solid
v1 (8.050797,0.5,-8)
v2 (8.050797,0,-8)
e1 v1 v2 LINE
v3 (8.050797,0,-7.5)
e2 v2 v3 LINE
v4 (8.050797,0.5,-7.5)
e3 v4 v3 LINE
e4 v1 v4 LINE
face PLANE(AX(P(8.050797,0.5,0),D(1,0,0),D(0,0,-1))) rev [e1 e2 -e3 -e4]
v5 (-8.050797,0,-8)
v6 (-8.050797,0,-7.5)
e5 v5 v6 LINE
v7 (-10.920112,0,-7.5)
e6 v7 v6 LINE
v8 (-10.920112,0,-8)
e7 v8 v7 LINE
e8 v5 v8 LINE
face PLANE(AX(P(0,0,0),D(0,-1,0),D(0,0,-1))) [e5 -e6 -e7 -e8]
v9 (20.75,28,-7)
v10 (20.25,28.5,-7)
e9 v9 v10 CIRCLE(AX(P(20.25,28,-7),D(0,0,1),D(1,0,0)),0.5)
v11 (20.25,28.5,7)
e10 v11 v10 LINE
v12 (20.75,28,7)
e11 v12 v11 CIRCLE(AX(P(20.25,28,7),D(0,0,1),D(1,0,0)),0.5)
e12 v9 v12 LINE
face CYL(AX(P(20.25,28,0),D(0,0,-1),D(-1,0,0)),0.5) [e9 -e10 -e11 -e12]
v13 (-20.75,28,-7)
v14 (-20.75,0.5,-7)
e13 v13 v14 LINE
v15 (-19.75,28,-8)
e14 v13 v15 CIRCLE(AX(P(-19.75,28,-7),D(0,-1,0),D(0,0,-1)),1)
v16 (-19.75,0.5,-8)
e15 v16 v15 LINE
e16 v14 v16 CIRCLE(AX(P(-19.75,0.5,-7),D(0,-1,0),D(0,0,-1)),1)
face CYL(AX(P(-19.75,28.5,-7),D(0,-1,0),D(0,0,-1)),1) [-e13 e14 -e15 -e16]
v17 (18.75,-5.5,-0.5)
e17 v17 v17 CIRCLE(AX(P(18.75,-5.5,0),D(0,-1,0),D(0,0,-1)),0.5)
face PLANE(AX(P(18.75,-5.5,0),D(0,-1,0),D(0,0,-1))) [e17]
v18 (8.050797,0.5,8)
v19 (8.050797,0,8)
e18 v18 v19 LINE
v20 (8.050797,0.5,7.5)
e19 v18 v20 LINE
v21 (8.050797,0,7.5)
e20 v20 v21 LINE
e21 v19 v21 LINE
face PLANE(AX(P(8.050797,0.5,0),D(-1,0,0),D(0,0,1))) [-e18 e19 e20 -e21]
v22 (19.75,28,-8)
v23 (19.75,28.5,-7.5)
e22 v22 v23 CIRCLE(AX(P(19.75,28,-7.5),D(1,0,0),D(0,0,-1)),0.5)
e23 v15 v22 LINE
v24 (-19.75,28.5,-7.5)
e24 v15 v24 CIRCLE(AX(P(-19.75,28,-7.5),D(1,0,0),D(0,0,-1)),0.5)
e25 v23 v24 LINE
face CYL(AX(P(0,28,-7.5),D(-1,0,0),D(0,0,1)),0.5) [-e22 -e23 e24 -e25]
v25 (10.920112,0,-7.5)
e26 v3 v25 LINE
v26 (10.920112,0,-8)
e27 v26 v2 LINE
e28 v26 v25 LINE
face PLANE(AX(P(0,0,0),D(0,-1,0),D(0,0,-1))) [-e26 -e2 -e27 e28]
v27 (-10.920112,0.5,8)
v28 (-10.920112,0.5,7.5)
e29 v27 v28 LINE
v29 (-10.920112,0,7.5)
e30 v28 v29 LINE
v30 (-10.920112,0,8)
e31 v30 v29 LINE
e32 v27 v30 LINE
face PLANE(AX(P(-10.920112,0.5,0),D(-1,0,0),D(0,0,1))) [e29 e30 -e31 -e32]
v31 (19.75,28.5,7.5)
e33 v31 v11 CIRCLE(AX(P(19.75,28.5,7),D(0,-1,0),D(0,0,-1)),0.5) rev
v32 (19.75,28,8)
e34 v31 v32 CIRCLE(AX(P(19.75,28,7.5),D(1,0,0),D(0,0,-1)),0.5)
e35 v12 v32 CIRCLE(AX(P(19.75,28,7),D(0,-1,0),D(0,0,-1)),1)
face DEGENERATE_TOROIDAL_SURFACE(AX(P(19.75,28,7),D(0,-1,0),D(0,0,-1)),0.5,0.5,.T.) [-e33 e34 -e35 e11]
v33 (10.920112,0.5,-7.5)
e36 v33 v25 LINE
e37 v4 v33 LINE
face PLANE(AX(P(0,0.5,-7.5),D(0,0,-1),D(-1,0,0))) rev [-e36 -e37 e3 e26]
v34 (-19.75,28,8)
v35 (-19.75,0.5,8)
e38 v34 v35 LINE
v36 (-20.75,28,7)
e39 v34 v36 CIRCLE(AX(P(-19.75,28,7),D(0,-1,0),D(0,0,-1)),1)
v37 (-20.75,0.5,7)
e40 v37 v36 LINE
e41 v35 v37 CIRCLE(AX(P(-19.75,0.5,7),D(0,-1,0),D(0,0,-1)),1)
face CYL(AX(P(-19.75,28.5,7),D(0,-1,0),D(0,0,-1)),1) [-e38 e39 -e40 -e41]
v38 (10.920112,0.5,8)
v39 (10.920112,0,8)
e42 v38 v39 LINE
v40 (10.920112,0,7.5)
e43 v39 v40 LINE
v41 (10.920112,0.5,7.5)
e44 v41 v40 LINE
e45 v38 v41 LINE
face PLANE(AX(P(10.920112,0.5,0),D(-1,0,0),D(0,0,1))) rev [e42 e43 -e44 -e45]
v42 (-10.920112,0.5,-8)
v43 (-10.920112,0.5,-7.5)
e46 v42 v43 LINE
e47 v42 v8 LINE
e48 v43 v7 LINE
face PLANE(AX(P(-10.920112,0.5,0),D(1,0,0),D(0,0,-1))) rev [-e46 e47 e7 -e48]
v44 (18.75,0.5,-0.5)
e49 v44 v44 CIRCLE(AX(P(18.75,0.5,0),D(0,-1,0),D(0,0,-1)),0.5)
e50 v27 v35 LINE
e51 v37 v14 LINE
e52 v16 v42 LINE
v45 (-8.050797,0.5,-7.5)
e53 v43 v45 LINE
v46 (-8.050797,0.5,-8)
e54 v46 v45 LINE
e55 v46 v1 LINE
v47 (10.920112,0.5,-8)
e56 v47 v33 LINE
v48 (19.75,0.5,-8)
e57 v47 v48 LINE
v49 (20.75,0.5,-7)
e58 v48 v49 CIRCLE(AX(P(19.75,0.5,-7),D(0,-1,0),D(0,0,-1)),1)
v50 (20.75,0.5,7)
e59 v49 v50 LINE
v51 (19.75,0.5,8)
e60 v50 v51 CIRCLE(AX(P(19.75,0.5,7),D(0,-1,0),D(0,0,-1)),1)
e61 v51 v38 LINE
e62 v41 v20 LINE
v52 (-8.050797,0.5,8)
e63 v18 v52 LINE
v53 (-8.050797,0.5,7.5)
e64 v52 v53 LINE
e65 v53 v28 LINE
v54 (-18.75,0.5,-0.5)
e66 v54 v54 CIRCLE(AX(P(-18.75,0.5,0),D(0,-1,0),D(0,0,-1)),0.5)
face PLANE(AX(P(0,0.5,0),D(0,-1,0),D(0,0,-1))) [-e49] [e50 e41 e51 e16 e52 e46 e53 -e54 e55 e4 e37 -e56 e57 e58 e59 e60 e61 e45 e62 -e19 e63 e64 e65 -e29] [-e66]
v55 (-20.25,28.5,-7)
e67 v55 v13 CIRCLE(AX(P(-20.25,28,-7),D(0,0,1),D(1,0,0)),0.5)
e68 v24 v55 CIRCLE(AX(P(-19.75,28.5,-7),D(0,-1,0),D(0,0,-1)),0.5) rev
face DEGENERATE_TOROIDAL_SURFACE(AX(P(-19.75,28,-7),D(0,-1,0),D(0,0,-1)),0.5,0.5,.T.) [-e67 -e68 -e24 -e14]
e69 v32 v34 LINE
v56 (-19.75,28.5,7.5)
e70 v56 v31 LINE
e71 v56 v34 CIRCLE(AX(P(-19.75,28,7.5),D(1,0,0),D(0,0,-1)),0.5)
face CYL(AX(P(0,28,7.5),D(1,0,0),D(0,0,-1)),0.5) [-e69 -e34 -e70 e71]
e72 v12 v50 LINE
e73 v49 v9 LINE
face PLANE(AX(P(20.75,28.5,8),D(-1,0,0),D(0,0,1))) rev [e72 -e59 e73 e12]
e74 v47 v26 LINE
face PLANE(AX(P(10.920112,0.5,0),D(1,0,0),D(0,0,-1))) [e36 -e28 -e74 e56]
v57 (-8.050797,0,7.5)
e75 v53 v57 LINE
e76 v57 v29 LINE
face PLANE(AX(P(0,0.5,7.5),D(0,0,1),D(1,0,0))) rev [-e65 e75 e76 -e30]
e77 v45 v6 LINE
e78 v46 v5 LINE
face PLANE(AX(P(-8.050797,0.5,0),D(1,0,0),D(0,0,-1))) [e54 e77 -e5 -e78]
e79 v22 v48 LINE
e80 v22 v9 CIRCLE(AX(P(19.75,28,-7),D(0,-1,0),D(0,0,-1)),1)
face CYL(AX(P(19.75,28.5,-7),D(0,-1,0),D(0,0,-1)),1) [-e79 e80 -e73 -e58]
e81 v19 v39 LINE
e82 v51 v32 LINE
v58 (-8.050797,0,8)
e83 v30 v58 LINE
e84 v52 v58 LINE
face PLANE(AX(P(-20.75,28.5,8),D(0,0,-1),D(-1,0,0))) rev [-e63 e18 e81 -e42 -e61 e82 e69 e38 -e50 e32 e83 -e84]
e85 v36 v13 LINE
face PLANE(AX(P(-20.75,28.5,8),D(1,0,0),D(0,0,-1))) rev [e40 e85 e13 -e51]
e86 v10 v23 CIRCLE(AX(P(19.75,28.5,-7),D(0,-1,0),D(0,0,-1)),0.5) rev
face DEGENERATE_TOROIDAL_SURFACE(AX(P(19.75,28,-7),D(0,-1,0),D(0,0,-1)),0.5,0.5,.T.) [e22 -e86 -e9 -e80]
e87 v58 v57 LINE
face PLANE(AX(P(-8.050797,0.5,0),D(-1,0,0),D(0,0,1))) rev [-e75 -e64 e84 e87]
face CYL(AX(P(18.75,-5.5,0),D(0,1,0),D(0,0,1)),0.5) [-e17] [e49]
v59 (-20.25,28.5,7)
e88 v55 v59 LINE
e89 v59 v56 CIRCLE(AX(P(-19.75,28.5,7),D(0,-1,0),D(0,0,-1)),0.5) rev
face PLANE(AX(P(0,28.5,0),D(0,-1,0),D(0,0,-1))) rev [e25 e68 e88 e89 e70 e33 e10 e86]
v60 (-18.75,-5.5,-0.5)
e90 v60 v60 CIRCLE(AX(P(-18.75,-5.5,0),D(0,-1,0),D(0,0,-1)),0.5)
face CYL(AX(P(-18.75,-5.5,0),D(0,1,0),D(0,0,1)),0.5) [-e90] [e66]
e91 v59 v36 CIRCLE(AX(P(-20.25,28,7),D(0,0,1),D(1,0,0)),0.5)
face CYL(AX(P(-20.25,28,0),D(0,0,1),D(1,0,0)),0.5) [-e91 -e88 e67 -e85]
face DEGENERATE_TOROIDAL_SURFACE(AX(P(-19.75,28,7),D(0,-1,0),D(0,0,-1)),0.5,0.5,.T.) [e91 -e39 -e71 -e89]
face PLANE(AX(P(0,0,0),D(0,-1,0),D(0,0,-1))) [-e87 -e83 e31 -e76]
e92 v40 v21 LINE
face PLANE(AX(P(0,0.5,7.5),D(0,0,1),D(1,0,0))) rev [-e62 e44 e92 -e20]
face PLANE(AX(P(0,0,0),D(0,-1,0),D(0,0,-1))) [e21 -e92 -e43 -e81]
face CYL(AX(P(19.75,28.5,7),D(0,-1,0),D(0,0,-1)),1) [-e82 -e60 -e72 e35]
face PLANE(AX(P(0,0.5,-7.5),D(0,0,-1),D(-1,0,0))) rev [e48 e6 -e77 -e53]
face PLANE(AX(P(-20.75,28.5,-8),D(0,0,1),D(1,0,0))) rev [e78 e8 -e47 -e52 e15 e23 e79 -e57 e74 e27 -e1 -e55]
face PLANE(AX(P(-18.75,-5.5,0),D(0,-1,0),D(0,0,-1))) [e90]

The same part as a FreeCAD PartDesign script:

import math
import FreeCAD as App
import Part
import Sketcher
from FreeCAD import Vector
Q = App.Units.Quantity


def edges_at(feature, points):
    """Names of the edges that pass closest to the given points."""
    edges = feature.Shape.Edges
    near = lambda p: min(range(len(edges)), key=lambda i: edges[i].distToShape(Part.Vertex(*p))[0])
    return sorted({f"Edge{near(p) + 1}" for p in points})

doc = App.newDocument("Part")
body = doc.addObject("PartDesign::Body", "Body")

# Sketch on XZ plane
sketch1 = body.newObject("Sketcher::SketchObject", "Sketch")
sketch1.AttachmentSupport = (doc.getObject("XZ_Plane"), [""])
sketch1.MapMode = "FlatFace"
sketch1.addGeometry([
    Part.LineSegment(Vector(-21, -8, 0), Vector(-21, 8, 0)),
    Part.LineSegment(Vector(-21, 8, 0), Vector(21, 8, 0)),
    Part.LineSegment(Vector(21, 8, 0), Vector(21, -8, 0)),
    Part.LineSegment(Vector(21, -8, 0), Vector(-21, -8, 0)),
], False)
sketch1.addConstraint([
    Sketcher.Constraint("Coincident", 0, 2, 1, 1),
    Sketcher.Constraint("Coincident", 1, 2, 2, 1),
    Sketcher.Constraint("Coincident", 2, 2, 3, 1),
    Sketcher.Constraint("Coincident", 3, 2, 0, 1),
    Sketcher.Constraint("Vertical", 0),
    Sketcher.Constraint("Horizontal", 1),
    Sketcher.Constraint("Vertical", 2),
    Sketcher.Constraint("Horizontal", 3),
    Sketcher.Constraint("Symmetric", 0, 2, 2, 2, -1, 1),
    Sketcher.Constraint("DistanceY", 0, 1, 0, 2, Q("16 mm")),
    Sketcher.Constraint("DistanceX", 1, 1, 1, 2, Q("41.5 mm")),
])
pad1 = body.newObject("PartDesign::Pad", "Pad")
pad1.Profile = sketch1
pad1.Length = 28.5
pad1.Reversed = True
doc.recompute()

fillet = body.newObject("PartDesign::Fillet", "Fillet")
fillet.Base = (pad1, edges_at(pad1, [
    (20.75, 14.25, 8),
    (-20.75, 14.25, 8),
    (-20.75, 14.25, -8),
    (20.75, 14.25, -8),
]))
fillet.Radius = 1
doc.recompute()

fillet2 = body.newObject("PartDesign::Fillet", "Fillet001")
fillet2.Base = (fillet, edges_at(fillet, [
    (0, 28.5, -8),
    (20.75, 28.5, 0),
    (-20.75, 28.5, 0),
    (0, 28.5, 8),
    (-20.457, 28.5, 7.707),
    (-20.457, 28.5, -7.707),
    (20.457, 28.5, 7.707),
    (20.457, 28.5, -7.707),
]))
fillet2.Radius = 0.5

# Sketch on XZ plane
sketch2 = body.newObject("Sketcher::SketchObject", "Sketch001")
sketch2.AttachmentSupport = (doc.getObject("XZ_Plane"), [""])
sketch2.MapMode = "FlatFace"
sketch2.AttachmentOffset = App.Placement(Vector(0, 0, -0.5), App.Rotation())
sketch2.addGeometry([
    Part.LineSegment(Vector(-10.9, 7.5, 0), Vector(-10.9, 8, 0)),  # 0
    Part.LineSegment(Vector(-10.9, 8, 0), Vector(-19.8, 8, 0)),  # 1
    Part.ArcOfCircle(Part.Circle(Vector(-19.7, 7, 0), Vector(0, 0, 1), 1), math.radians(90), math.radians(180)),  # 2
    Part.LineSegment(Vector(-20.8, 7, 0), Vector(-20.8, -7, 0)),  # 3
    Part.ArcOfCircle(Part.Circle(Vector(-19.7, -7, 0), Vector(0, 0, 1), 1), math.radians(-180), math.radians(-90)),  # 4
    Part.LineSegment(Vector(-19.8, -8, 0), Vector(-10.9, -8, 0)),  # 5
    Part.LineSegment(Vector(-10.9, -8, 0), Vector(-10.9, -7.5, 0)),  # 6
    Part.LineSegment(Vector(-10.9, -7.5, 0), Vector(-8.1, -7.5, 0)),  # 7
    Part.LineSegment(Vector(-8.1, -7.5, 0), Vector(-8.1, -8, 0)),  # 8
    Part.LineSegment(Vector(-8.1, -8, 0), Vector(8.1, -8, 0)),  # 9
    Part.LineSegment(Vector(8.1, -8, 0), Vector(8.1, -7.5, 0)),  # 10
    Part.LineSegment(Vector(8.1, -7.5, 0), Vector(10.9, -7.5, 0)),  # 11
    Part.LineSegment(Vector(10.9, -7.5, 0), Vector(10.9, -8, 0)),  # 12
    Part.LineSegment(Vector(10.9, -8, 0), Vector(19.8, -8, 0)),  # 13
    Part.ArcOfCircle(Part.Circle(Vector(19.7, -7, 0), Vector(0, 0, 1), 1), math.radians(-90), math.radians(0)),  # 14
    Part.LineSegment(Vector(20.8, -7, 0), Vector(20.8, 7, 0)),  # 15
    Part.ArcOfCircle(Part.Circle(Vector(19.7, 7, 0), Vector(0, 0, 1), 1), math.radians(0), math.radians(90)),  # 16
    Part.LineSegment(Vector(19.8, 8, 0), Vector(10.9, 8, 0)),  # 17
    Part.LineSegment(Vector(10.9, 8, 0), Vector(10.9, 7.5, 0)),  # 18
    Part.LineSegment(Vector(10.9, 7.5, 0), Vector(8.1, 7.5, 0)),  # 19
    Part.LineSegment(Vector(8.1, 7.5, 0), Vector(8.1, 8, 0)),  # 20
    Part.LineSegment(Vector(8.1, 8, 0), Vector(-8.1, 8, 0)),  # 21
    Part.LineSegment(Vector(-8.1, 8, 0), Vector(-8.1, 7.5, 0)),  # 22
    Part.LineSegment(Vector(-8.1, 7.5, 0), Vector(-10.9, 7.5, 0)),  # 23
], False)
sketch2.addConstraint([
    Sketcher.Constraint("Coincident", 0, 2, 1, 1),
    Sketcher.Constraint("Tangent", 1, 2, 2, 1),
    Sketcher.Constraint("Tangent", 2, 2, 3, 1),
    Sketcher.Constraint("Tangent", 3, 2, 4, 1),
    Sketcher.Constraint("Tangent", 4, 2, 5, 1),
    Sketcher.Constraint("Coincident", 5, 2, 6, 1),
    Sketcher.Constraint("Coincident", 6, 2, 7, 1),
    Sketcher.Constraint("Coincident", 7, 2, 8, 1),
    Sketcher.Constraint("Coincident", 8, 2, 9, 1),
    Sketcher.Constraint("Coincident", 9, 2, 10, 1),
    Sketcher.Constraint("Coincident", 10, 2, 11, 1),
    Sketcher.Constraint("Coincident", 11, 2, 12, 1),
    Sketcher.Constraint("Coincident", 12, 2, 13, 1),
    Sketcher.Constraint("Tangent", 13, 2, 14, 1),
    Sketcher.Constraint("Tangent", 14, 2, 15, 1),
    Sketcher.Constraint("Tangent", 15, 2, 16, 1),
    Sketcher.Constraint("Tangent", 16, 2, 17, 1),
    Sketcher.Constraint("Coincident", 17, 2, 18, 1),
    Sketcher.Constraint("Coincident", 18, 2, 19, 1),
    Sketcher.Constraint("Coincident", 19, 2, 20, 1),
    Sketcher.Constraint("Coincident", 20, 2, 21, 1),
    Sketcher.Constraint("Coincident", 21, 2, 22, 1),
    Sketcher.Constraint("Coincident", 22, 2, 23, 1),
    Sketcher.Constraint("Coincident", 23, 2, 0, 1),
    Sketcher.Constraint("Vertical", 0),
    Sketcher.Constraint("Horizontal", 1),
    Sketcher.Constraint("Vertical", 3),
    Sketcher.Constraint("Horizontal", 5),
    Sketcher.Constraint("Vertical", 6),
    Sketcher.Constraint("Horizontal", 7),
    Sketcher.Constraint("Vertical", 8),
    Sketcher.Constraint("Horizontal", 9),
    Sketcher.Constraint("Vertical", 10),
    Sketcher.Constraint("Horizontal", 11),
    Sketcher.Constraint("Vertical", 12),
    Sketcher.Constraint("Horizontal", 13),
    Sketcher.Constraint("Vertical", 15),
    Sketcher.Constraint("Horizontal", 17),
    Sketcher.Constraint("Vertical", 18),
    Sketcher.Constraint("Horizontal", 19),
    Sketcher.Constraint("Vertical", 20),
    Sketcher.Constraint("Horizontal", 21),
    Sketcher.Constraint("Vertical", 22),
    Sketcher.Constraint("Horizontal", 23),
    Sketcher.Constraint("Equal", 2, 4),
    Sketcher.Constraint("Equal", 4, 14),
    Sketcher.Constraint("Equal", 14, 16),
    Sketcher.Constraint("Symmetric", 2, 3, 14, 3, -1, 1),
    Sketcher.Constraint("Symmetric", 5, 2, 17, 2, -1, 1),
    Sketcher.Constraint("Symmetric", 7, 2, 19, 2, -1, 1),
    Sketcher.Constraint("Symmetric", 9, 2, 21, 2, -1, 1),
    Sketcher.Constraint("Symmetric", 11, 2, 23, 2, -1, 1),
    Sketcher.Constraint("Symmetric", 7, 2, 10, 2, -2),
    Sketcher.Constraint("Symmetric", 5, 2, 12, 2, -2),
    Sketcher.Constraint("Horizontal", 5, 2, 8, 2),
    Sketcher.Constraint("Radius", 2, Q("1 mm")),
    Sketcher.Constraint("DistanceY", 3, 2, 3, 1, Q("14 mm")),
    Sketcher.Constraint("DistanceY", 0, 1, 0, 2, Q("0.5 mm")),
    Sketcher.Constraint("DistanceX", 4, 3, 14, 3, Q("39.5 mm")),
    Sketcher.Constraint("DistanceX", 1, 2, 1, 1, Q("8.829888 mm")),
    Sketcher.Constraint("DistanceX", 7, 1, 7, 2, Q("2.869315 mm")),
])
pocket1 = body.newObject("PartDesign::Pocket", "Pocket")
pocket1.Profile = sketch2
pocket1.Length = 0.5
pocket1.Reversed = True

# Sketch on XZ plane
sketch3 = body.newObject("Sketcher::SketchObject", "Sketch002")
sketch3.AttachmentSupport = (doc.getObject("XZ_Plane"), [""])
sketch3.MapMode = "FlatFace"
sketch3.AttachmentOffset = App.Placement(Vector(0, 0, -0.5), App.Rotation())
sketch3.addGeometry([
    Part.Circle(Vector(-18.8, 0, 0), Vector(0, 0, 1), 0.5),
    Part.Circle(Vector(18.8, 0, 0), Vector(0, 0, 1), 0.5),
], False)
sketch3.addConstraint([
    Sketcher.Constraint("Equal", 0, 1),
    Sketcher.Constraint("Symmetric", 0, 3, 1, 3, -1, 1),
    Sketcher.Constraint("PointOnObject", 0, 3, -1),
    Sketcher.Constraint("Diameter", 0, Q("1 mm")),
    Sketcher.Constraint("DistanceX", 0, 3, 1, 3, Q("37.5 mm")),
])
pad2 = body.newObject("PartDesign::Pad", "Pad001")
pad2.Profile = sketch3
pad2.Length = 6

doc.recompute()
